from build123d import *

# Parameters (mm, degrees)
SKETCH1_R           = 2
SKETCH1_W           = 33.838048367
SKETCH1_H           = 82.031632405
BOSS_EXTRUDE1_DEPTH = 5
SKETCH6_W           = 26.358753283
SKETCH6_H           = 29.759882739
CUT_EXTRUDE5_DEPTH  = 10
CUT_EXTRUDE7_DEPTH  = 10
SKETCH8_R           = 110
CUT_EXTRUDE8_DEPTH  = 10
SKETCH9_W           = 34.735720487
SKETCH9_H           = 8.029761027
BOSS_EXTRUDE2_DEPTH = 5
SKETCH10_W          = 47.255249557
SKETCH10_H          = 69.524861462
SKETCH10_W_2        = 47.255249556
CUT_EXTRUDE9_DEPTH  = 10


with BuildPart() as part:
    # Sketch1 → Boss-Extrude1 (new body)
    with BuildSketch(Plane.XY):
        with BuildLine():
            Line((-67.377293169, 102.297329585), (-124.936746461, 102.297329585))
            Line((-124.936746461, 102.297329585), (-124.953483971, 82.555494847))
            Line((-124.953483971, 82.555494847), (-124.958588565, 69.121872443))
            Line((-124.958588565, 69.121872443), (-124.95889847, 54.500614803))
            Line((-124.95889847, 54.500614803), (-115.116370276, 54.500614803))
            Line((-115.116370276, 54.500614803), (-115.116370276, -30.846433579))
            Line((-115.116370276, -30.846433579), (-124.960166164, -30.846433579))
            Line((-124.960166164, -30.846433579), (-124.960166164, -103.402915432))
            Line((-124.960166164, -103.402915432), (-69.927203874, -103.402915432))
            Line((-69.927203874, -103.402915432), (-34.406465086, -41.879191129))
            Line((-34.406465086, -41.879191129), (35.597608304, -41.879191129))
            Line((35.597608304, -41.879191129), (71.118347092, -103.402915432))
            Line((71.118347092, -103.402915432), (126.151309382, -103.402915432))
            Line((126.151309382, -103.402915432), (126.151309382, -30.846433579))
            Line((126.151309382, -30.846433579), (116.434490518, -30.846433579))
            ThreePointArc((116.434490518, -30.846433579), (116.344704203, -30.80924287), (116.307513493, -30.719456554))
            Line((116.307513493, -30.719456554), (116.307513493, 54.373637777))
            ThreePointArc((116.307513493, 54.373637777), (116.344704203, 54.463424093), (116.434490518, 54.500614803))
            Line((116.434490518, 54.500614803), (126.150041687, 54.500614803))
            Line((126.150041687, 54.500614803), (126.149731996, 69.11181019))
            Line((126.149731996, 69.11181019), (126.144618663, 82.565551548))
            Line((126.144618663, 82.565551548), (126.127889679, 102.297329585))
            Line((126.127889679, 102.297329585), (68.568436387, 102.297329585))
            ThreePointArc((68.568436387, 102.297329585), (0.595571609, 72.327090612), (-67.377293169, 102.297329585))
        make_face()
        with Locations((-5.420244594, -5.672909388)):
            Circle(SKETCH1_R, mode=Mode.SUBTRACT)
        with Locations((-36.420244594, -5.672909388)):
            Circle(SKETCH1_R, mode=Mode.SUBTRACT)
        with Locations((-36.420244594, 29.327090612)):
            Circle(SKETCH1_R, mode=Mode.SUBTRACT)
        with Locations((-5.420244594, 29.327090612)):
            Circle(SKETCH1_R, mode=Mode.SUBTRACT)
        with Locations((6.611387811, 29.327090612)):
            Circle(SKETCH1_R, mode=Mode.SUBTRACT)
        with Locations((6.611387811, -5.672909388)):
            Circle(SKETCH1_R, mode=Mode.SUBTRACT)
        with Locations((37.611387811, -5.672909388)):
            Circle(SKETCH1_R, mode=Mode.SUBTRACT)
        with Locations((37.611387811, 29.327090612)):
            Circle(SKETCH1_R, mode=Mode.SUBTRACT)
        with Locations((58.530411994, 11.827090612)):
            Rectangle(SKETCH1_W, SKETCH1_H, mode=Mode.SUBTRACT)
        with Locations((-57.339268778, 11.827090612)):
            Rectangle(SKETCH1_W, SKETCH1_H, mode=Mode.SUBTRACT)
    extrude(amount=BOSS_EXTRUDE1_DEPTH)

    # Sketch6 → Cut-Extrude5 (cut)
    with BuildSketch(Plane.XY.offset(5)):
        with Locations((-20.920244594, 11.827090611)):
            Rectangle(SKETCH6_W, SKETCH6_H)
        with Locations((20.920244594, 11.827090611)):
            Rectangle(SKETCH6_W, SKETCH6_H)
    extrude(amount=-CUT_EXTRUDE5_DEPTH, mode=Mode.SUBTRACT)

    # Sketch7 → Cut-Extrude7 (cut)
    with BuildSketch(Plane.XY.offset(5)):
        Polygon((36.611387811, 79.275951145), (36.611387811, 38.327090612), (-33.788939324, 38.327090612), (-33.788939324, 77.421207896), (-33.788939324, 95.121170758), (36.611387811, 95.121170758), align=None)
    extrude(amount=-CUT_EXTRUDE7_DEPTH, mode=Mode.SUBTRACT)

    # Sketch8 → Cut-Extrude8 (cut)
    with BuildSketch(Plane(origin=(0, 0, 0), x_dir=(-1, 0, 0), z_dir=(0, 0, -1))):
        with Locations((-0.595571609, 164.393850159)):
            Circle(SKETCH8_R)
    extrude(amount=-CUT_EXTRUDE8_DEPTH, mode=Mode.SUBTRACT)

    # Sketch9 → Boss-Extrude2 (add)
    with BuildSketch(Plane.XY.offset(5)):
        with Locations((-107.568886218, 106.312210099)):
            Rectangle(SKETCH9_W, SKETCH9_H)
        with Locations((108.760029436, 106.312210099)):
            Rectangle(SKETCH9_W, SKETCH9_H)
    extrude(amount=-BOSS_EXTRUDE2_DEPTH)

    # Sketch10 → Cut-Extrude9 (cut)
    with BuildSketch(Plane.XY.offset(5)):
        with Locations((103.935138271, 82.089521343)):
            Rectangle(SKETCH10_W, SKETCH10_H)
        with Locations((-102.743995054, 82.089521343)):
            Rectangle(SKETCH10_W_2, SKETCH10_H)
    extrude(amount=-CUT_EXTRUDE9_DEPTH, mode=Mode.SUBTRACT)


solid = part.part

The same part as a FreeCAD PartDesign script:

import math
import FreeCAD as App
import Part
import Sketcher
from FreeCAD import Vector
Q = App.Units.Quantity


def add_polygon(sketch, points):
    """Adds a closed chain of lines whose ends are joined by coincident constraints."""
    first, n = sketch.GeometryCount, len(points)
    for a, b in zip(points, points[1:] + points[:1]):
        sketch.addGeometry(Part.LineSegment(App.Vector(*a, 0), App.Vector(*b, 0)), False)
    for i in range(n):
        sketch.addConstraint(Sketcher.Constraint("Coincident", first + i, 2, first + (i + 1) % n, 1))

doc = App.newDocument("Part")
body = doc.addObject("PartDesign::Body", "Body")

# Sketch on XY plane
sketch1 = doc.addObject("Sketcher::SketchObject", "Sketch")
body.addObject(sketch1)
sketch1.AttachmentSupport = (doc.XY_Plane, [""])
sketch1.MapMode = "FlatFace"
sketch1.addGeometry(Part.LineSegment(Vector(-67.38, 102.3, 0), Vector(-124.94, 102.3, 0)), False)  # 0
sketch1.addGeometry(Part.LineSegment(Vector(-124.94, 102.3, 0), Vector(-124.95, 82.56, 0)), False)  # 1
sketch1.addGeometry(Part.LineSegment(Vector(-124.95, 82.56, 0), Vector(-124.96, 69.12, 0)), False)  # 2
sketch1.addGeometry(Part.LineSegment(Vector(-124.96, 69.12, 0), Vector(-124.96, 54.5, 0)), False)  # 3
sketch1.addGeometry(Part.LineSegment(Vector(-124.96, 54.5, 0), Vector(-115.12, 54.5, 0)), False)  # 4
sketch1.addGeometry(Part.LineSegment(Vector(-115.12, 54.5, 0), Vector(-115.12, -30.85, 0)), False)  # 5
sketch1.addGeometry(Part.LineSegment(Vector(-115.12, -30.85, 0), Vector(-124.96, -30.85, 0)), False)  # 6
sketch1.addGeometry(Part.LineSegment(Vector(-124.96, -30.85, 0), Vector(-124.96, -103.4, 0)), False)  # 7
sketch1.addGeometry(Part.LineSegment(Vector(-124.96, -103.4, 0), Vector(-69.93, -103.4, 0)), False)  # 8
sketch1.addGeometry(Part.LineSegment(Vector(-69.93, -103.4, 0), Vector(-34.41, -41.88, 0)), False)  # 9
sketch1.addGeometry(Part.LineSegment(Vector(-34.41, -41.88, 0), Vector(35.6, -41.88, 0)), False)  # 10
sketch1.addGeometry(Part.LineSegment(Vector(35.6, -41.88, 0), Vector(71.12, -103.4, 0)), False)  # 11
sketch1.addGeometry(Part.LineSegment(Vector(71.12, -103.4, 0), Vector(126.15, -103.4, 0)), False)  # 12
sketch1.addGeometry(Part.LineSegment(Vector(126.15, -103.4, 0), Vector(126.15, -30.85, 0)), False)  # 13
sketch1.addGeometry(Part.LineSegment(Vector(126.15, -30.85, 0), Vector(116.43, -30.85, 0)), False)  # 14
sketch1.addGeometry(Part.ArcOfCircle(Part.Circle(Vector(116.43, -30.72, 0), Vector(0, 0, 1), 0.13), math.radians(180), math.radians(270)), False)  # 15
sketch1.addGeometry(Part.LineSegment(Vector(116.31, -30.72, 0), Vector(116.31, 54.37, 0)), False)  # 16
sketch1.addGeometry(Part.ArcOfCircle(Part.Circle(Vector(116.43, 54.37, 0), Vector(0, 0, 1), 0.13), math.radians(90), math.radians(180)), False)  # 17
sketch1.addGeometry(Part.LineSegment(Vector(116.43, 54.5, 0), Vector(126.15, 54.5, 0)), False)  # 18
sketch1.addGeometry(Part.LineSegment(Vector(126.15, 54.5, 0), Vector(126.15, 69.11, 0)), False)  # 19
sketch1.addGeometry(Part.LineSegment(Vector(126.15, 69.11, 0), Vector(126.14, 82.57, 0)), False)  # 20
sketch1.addGeometry(Part.LineSegment(Vector(126.14, 82.57, 0), Vector(126.13, 102.3, 0)), False)  # 21
sketch1.addGeometry(Part.LineSegment(Vector(126.13, 102.3, 0), Vector(68.57, 102.3, 0)), False)  # 22
sketch1.addGeometry(Part.ArcOfCircle(Part.Circle(Vector(0.6, 164.39, 0), Vector(0, 0, 1), 92.07), math.radians(-138), math.radians(-42)), False)  # 23
sketch1.addGeometry(Part.Circle(Vector(-36.42, -5.67, 0), Vector(0, 0, 1), 2), False)  # 24
sketch1.addGeometry(Part.Circle(Vector(-5.42, -5.67, 0), Vector(0, 0, 1), 2), False)  # 25
sketch1.addGeometry(Part.Circle(Vector(6.61, -5.67, 0), Vector(0, 0, 1), 2), False)  # 26
sketch1.addGeometry(Part.Circle(Vector(37.61, -5.67, 0), Vector(0, 0, 1), 2), False)  # 27
add_polygon(sketch1, [(-40.42, -29.19), (-74.26, -29.19), (-74.26, 52.84), (-40.42, 52.84)])  # lines 28-31
sketch1.addGeometry(Part.Circle(Vector(-36.42, 29.33, 0), Vector(0, 0, 1), 2), False)  # 32
sketch1.addGeometry(Part.Circle(Vector(-5.42, 29.33, 0), Vector(0, 0, 1), 2), False)  # 33
sketch1.addGeometry(Part.Circle(Vector(6.61, 29.33, 0), Vector(0, 0, 1), 2), False)  # 34
sketch1.addGeometry(Part.Circle(Vector(37.61, 29.33, 0), Vector(0, 0, 1), 2), False)  # 35
add_polygon(sketch1, [(75.45, -29.19), (41.61, -29.19), (41.61, 52.84), (75.45, 52.84)])  # lines 36-39
sketch1.addConstraint([
    Sketcher.Constraint("Coincident", 0, 2, 1, 1),
    Sketcher.Constraint("Coincident", 1, 2, 2, 1),
    Sketcher.Constraint("Coincident", 2, 2, 3, 1),
    Sketcher.Constraint("Coincident", 3, 2, 4, 1),
    Sketcher.Constraint("Coincident", 4, 2, 5, 1),
    Sketcher.Constraint("Coincident", 5, 2, 6, 1),
    Sketcher.Constraint("Coincident", 6, 2, 7, 1),
    Sketcher.Constraint("Coincident", 7, 2, 8, 1),
    Sketcher.Constraint("Coincident", 8, 2, 9, 1),
    Sketcher.Constraint("Coincident", 9, 2, 10, 1),
    Sketcher.Constraint("Coincident", 10, 2, 11, 1),
    Sketcher.Constraint("Coincident", 11, 2, 12, 1),
    Sketcher.Constraint("Coincident", 12, 2, 13, 1),
    Sketcher.Constraint("Coincident", 13, 2, 14, 1),
    Sketcher.Constraint("Tangent", 14, 2, 15, 2),
    Sketcher.Constraint("Tangent", 15, 1, 16, 1),
    Sketcher.Constraint("Tangent", 16, 2, 17, 2),
    Sketcher.Constraint("Tangent", 17, 1, 18, 1),
    Sketcher.Constraint("Coincident", 18, 2, 19, 1),
    Sketcher.Constraint("Coincident", 19, 2, 20, 1),
    Sketcher.Constraint("Coincident", 20, 2, 21, 1),
    Sketcher.Constraint("Coincident", 21, 2, 22, 1),
    Sketcher.Constraint("Coincident", 22, 2, 23, 2),
    Sketcher.Constraint("Coincident", 23, 1, 0, 1),
    Sketcher.Constraint("Horizontal", 0),
    Sketcher.Constraint("Horizontal", 4),
    Sketcher.Constraint("Vertical", 5),
    Sketcher.Constraint("Horizontal", 6),
    Sketcher.Constraint("Vertical", 7),
    Sketcher.Constraint("Horizontal", 8),
    Sketcher.Constraint("Horizontal", 10),
    Sketcher.Constraint("Horizontal", 12),
    Sketcher.Constraint("Vertical", 13),
    Sketcher.Constraint("Horizontal", 14),
    Sketcher.Constraint("Vertical", 16),
    Sketcher.Constraint("Horizontal", 18),
    Sketcher.Constraint("Horizontal", 22),
    Sketcher.Constraint("Horizontal", 28),
    Sketcher.Constraint("Vertical", 29),
    Sketcher.Constraint("Horizontal", 30),
    Sketcher.Constraint("Vertical", 31),
    Sketcher.Constraint("Horizontal", 36),
    Sketcher.Constraint("Vertical", 37),
    Sketcher.Constraint("Horizontal", 38),
    Sketcher.Constraint("Vertical", 39),
    Sketcher.Constraint("Equal", 15, 17),
    Sketcher.Constraint("Equal", 24, 25),
    Sketcher.Constraint("Equal", 25, 26),
    Sketcher.Constraint("Equal", 26, 27),
    Sketcher.Constraint("Equal", 27, 32),
    Sketcher.Constraint("Equal", 32, 33),
    Sketcher.Constraint("Equal", 33, 34),
    Sketcher.Constraint("Equal", 34, 35),
    Sketcher.Constraint("Horizontal", 24, 3, 25, 3),
    Sketcher.Constraint("Horizontal", 25, 3, 26, 3),
    Sketcher.Constraint("Horizontal", 26, 3, 27, 3),
    Sketcher.Constraint("Horizontal", 32, 3, 33, 3),
    Sketcher.Constraint("Horizontal", 33, 3, 34, 3),
    Sketcher.Constraint("Horizontal", 34, 3, 35, 3),
    Sketcher.Constraint("Horizontal", 8, 2, 11, 2),
    Sketcher.Constraint("Horizontal", 6, 2, 13, 2),
    Sketcher.Constraint("Horizontal", 4, 2, 17, 1),
    Sketcher.Constraint("Horizontal", 0, 2, 21, 2),
    Sketcher.Constraint("Horizontal", 31, 2, 36, 2),
    Sketcher.Constraint("Horizontal", 30, 2, 37, 2),
    Sketcher.Constraint("Vertical", 24, 3, 32, 3),
    Sketcher.Constraint("Vertical", 25, 3, 33, 3),
    Sketcher.Constraint("Vertical", 26, 3, 34, 3),
    Sketcher.Constraint("Vertical", 27, 3, 35, 3),
    Sketcher.Constraint("Equal", 8, 12),
    Sketcher.Constraint("Equal", 0, 22),
    Sketcher.Constraint("Equal", 30, 36),
    Sketcher.Constraint("Equal", 9, 11),
    Sketcher.Constraint("Diameter", 24, Q("4 mm")),
    Sketcher.Constraint("Angle", 9, Q("60 deg")),
    Sketcher.Constraint("DistanceX", 24, 3, 25, 3, Q("31 mm")),
    Sketcher.Constraint("DistanceX", 26, 3, 27, 3, Q("31 mm")),
    Sketcher.Constraint("DistanceY", 24, 3, 32, 3, Q("35 mm")),
    Sketcher.Constraint("DistanceX", 30, 2, 32, 3, Q("4 mm")),
    Sketcher.Constraint("DistanceX", 27, 3, 36, 2, Q("4 mm")),
    Sketcher.Constraint("Radius", 23, Q("92.06676 mm")),
    Sketcher.Constraint("Radius", 15, Q("0.126977 mm")),
    Sketcher.Constraint("DistanceX", 29, 2, 23, 1, Q("6.881 mm")),
    Sketcher.Constraint("DistanceX", 4, 1, 4, 2, Q("9.842528 mm")),
    Sketcher.Constraint("DistanceX", 14, 2, 14, 1, Q("9.716819 mm")),
    Sketcher.Constraint("DistanceX", 18, 1, 18, 2, Q("9.715551 mm")),
    Sketcher.Constraint("DistanceX", 28, 2, 28, 1, Q("33.838048 mm")),
    Sketcher.Constraint("DistanceY", 5, 2, 5, 1, Q("85.347048 mm")),
    Sketcher.Constraint("DistanceY", 7, 2, 7, 1, Q("72.556482 mm")),
    Sketcher.Constraint("DistanceX", 3, 2, -1, 1, Q("124.958898 mm")),
    Sketcher.Constraint("DistanceX", 0, 2, 32, 3, Q("88.516502 mm")),
    Sketcher.Constraint("DistanceX", 10, 2, 12, 2, Q("90.553701 mm")),
    Sketcher.Constraint("DistanceX", 17, 1, 21, 2, Q("9.693399 mm")),
    Sketcher.Constraint("Distance", 1, Q("19.741842 mm")),
    Sketcher.Constraint("DistanceX", 6, 2, 6, 1, Q("9.843796 mm")),
    Sketcher.Constraint("DistanceX", 8, 1, 8, 2, Q("55.032962 mm")),
    Sketcher.Constraint("DistanceX", 10, 1, 10, 2, Q("70.004073 mm")),
    Sketcher.Constraint("DistanceY", 29, 1, 29, 2, Q("82.031632 mm")),
    Sketcher.Constraint("DistanceX", -1, 1, 23, 3, Q("0.595572 mm")),
    Sketcher.Constraint("DistanceY", -1, 1, 23, 3, Q("164.39385 mm")),
    Sketcher.Constraint("DistanceY", 24, 3, -1, 1, Q("5.672909 mm")),
    Sketcher.Constraint("DistanceX", 2, 2, -1, 1, Q("124.958589 mm")),
    Sketcher.Constraint("DistanceY", 9, 2, -1, 1, Q("41.879191 mm")),
    Sketcher.Constraint("DistanceX", -1, 1, 19, 2, Q("126.149732 mm")),
    Sketcher.Constraint("DistanceY", -1, 1, 19, 2, Q("69.11181 mm")),
    Sketcher.Constraint("DistanceX", -1, 1, 20, 2, Q("126.144619 mm")),
    Sketcher.Constraint("DistanceY", -1, 1, 20, 2, Q("82.565552 mm")),
    Sketcher.Constraint("DistanceX", 1, 2, 32, 3, Q("88.533239 mm")),
    Sketcher.Constraint("DistanceX", 1, 2, 34, 3, Q("131.564872 mm")),
    Sketcher.Constraint("DistanceY", 32, 3, 2, 2, Q("39.794782 mm")),
    Sketcher.Constraint("DistanceY", 38, 2, 16, 2, Q("1.530731 mm")),
])
pad1 = doc.addObject("PartDesign::Pad", "Pad")
body.addObject(pad1)
pad1.Profile = sketch1
pad1.Length = 5

# Sketch on XY plane
sketch2 = doc.addObject("Sketcher::SketchObject", "Sketch001")
body.addObject(sketch2)
sketch2.AttachmentSupport = (doc.XY_Plane, [""])
sketch2.MapMode = "FlatFace"
sketch2.AttachmentOffset = App.Placement(Vector(0, 0, 5), App.Rotation())
add_polygon(sketch2, [(-34, 27), (-34, -3), (-8, -3), (-8, 27)])  # lines 0-3
add_polygon(sketch2, [(8, 27), (8, -3), (34, -3), (34, 27)])  # lines 4-7
sketch2.addConstraint([
    Sketcher.Constraint("Vertical", 0),
    Sketcher.Constraint("Horizontal", 1),
    Sketcher.Constraint("Vertical", 2),
    Sketcher.Constraint("Horizontal", 3),
    Sketcher.Constraint("Vertical", 4),
    Sketcher.Constraint("Horizontal", 5),
    Sketcher.Constraint("Vertical", 6),
    Sketcher.Constraint("Horizontal", 7),
    Sketcher.Constraint("Symmetric", 1, 2, 4, 2, -2),
    Sketcher.Constraint("Symmetric", 3, 2, 6, 2, -2),
    Sketcher.Constraint("DistanceX", 1, 1, 1, 2, Q("26.358753 mm")),
    Sketcher.Constraint("DistanceY", 0, 2, 0, 1, Q("29.759883 mm")),
    Sketcher.Constraint("DistanceX", 0, 2, -1, 1, Q("34.099621 mm")),
    Sketcher.Constraint("DistanceY", 0, 2, -1, 1, Q("3.052851 mm")),
])
pocket1 = doc.addObject("PartDesign::Pocket", "Pocket")
body.addObject(pocket1)
pocket1.Profile = sketch2
pocket1.Length = 10

# Sketch on XY plane
sketch3 = doc.addObject("Sketcher::SketchObject", "Sketch002")
body.addObject(sketch3)
sketch3.AttachmentSupport = (doc.XY_Plane, [""])
sketch3.MapMode = "FlatFace"
sketch3.AttachmentOffset = App.Placement(Vector(0, 0, 5), App.Rotation())
add_polygon(sketch3, [(37, 38), (37, 95), (-34, 95), (-34, 38)])  # lines 0-3
sketch3.addConstraint([
    Sketcher.Constraint("Vertical", 0),
    Sketcher.Constraint("Horizontal", 1),
    Sketcher.Constraint("Vertical", 2),
    Sketcher.Constraint("Horizontal", 3),
    Sketcher.Constraint("DistanceY", 0, 1, 0, 2, Q("56.79408 mm")),
    Sketcher.Constraint("DistanceX", 1, 2, 1, 1, Q("70.400327 mm")),
    Sketcher.Constraint("DistanceY", -1, 1, 0, 2, Q("95.121171 mm")),
    Sketcher.Constraint("DistanceX", 1, 2, -1, 1, Q("33.788939 mm")),
])
pocket2 = doc.addObject("PartDesign::Pocket", "Pocket001")
body.addObject(pocket2)
pocket2.Profile = sketch3
pocket2.Length = 10

# Sketch on XY plane
sketch4 = doc.addObject("Sketcher::SketchObject", "Sketch003")
body.addObject(sketch4)
sketch4.AttachmentSupport = (doc.XY_Plane, [""])
sketch4.MapMode = "FlatFace"
sketch4.addGeometry(Part.Circle(Vector(1, 164, 0), Vector(0, 0, 1), 110), False)
sketch4.addConstraint([
    Sketcher.Constraint("Diameter", 0, Q("220 mm")),
    Sketcher.Constraint("DistanceX", -1, 1, 0, 3, Q("0.595572 mm")),
    Sketcher.Constraint("DistanceY", -1, 1, 0, 3, Q("164.39385 mm")),
])
pocket3 = doc.addObject("PartDesign::Pocket", "Pocket002")
body.addObject(pocket3)
pocket3.Profile = sketch4
pocket3.Length = 10
pocket3.Reversed = True

# Sketch on XY plane
sketch5 = doc.addObject("Sketcher::SketchObject", "Sketch004")
body.addObject(sketch5)
sketch5.AttachmentSupport = (doc.XY_Plane, [""])
sketch5.MapMode = "FlatFace"
sketch5.AttachmentOffset = App.Placement(Vector(0, 0, 5), App.Rotation())
add_polygon(sketch5, [(-125, 110), (-125, 102), (-90, 102), (-90, 110)])  # lines 0-3
add_polygon(sketch5, [(91, 110), (91, 102), (126, 102), (126, 110)])  # lines 4-7
sketch5.addConstraint([
    Sketcher.Constraint("Vertical", 0),
    Sketcher.Constraint("Horizontal", 1),
    Sketcher.Constraint("Vertical", 2),
    Sketcher.Constraint("Horizontal", 3),
    Sketcher.Constraint("Vertical", 4),
    Sketcher.Constraint("Horizontal", 5),
    Sketcher.Constraint("Vertical", 6),
    Sketcher.Constraint("Horizontal", 7),
    Sketcher.Constraint("Horizontal", 1, 2, 4, 2),
    Sketcher.Constraint("Horizontal", 3, 2, 6, 2),
    Sketcher.Constraint("Equal", 3, 5),
    Sketcher.Constraint("DistanceX", 1, 1, 1, 2, Q("34.73572 mm")),
    Sketcher.Constraint("DistanceY", 0, 2, 0, 1, Q("8.029761 mm")),
    Sketcher.Constraint("DistanceY", -1, 1, 0, 2, Q("102.29733 mm")),
    Sketcher.Constraint("DistanceX", -1, 1, 4, 2, Q("91.392169 mm")),
    Sketcher.Constraint("DistanceX", 0, 2, -1, 1, Q("124.936746 mm")),
])
pad2 = doc.addObject("PartDesign::Pad", "Pad001")
body.addObject(pad2)
pad2.Profile = sketch5
pad2.Length = 5
pad2.Reversed = True

# Sketch on XY plane
sketch6 = doc.addObject("Sketcher::SketchObject", "Sketch005")
body.addObject(sketch6)
sketch6.AttachmentSupport = (doc.XY_Plane, [""])
sketch6.MapMode = "FlatFace"
sketch6.AttachmentOffset = App.Placement(Vector(0, 0, 5), App.Rotation())
add_polygon(sketch6, [(80, 117), (80, 47), (128, 47), (128, 117)])  # lines 0-3
add_polygon(sketch6, [(-126, 117), (-126, 47), (-79, 47), (-79, 117)])  # lines 4-7
sketch6.addConstraint([
    Sketcher.Constraint("Vertical", 0),
    Sketcher.Constraint("Horizontal", 1),
    Sketcher.Constraint("Vertical", 2),
    Sketcher.Constraint("Horizontal", 3),
    Sketcher.Constraint("Vertical", 4),
    Sketcher.Constraint("Horizontal", 5),
    Sketcher.Constraint("Vertical", 6),
    Sketcher.Constraint("Horizontal", 7),
    Sketcher.Constraint("Horizontal", 1, 2, 4, 2),
    Sketcher.Constraint("Horizontal", 3, 2, 6, 2),
    Sketcher.Constraint("Equal", 3, 5),
    Sketcher.Constraint("DistanceX", 1, 1, 1, 2, Q("47.25525 mm")),
    Sketcher.Constraint("DistanceY", 0, 2, 0, 1, Q("69.524861 mm")),
    Sketcher.Constraint("DistanceY", -1, 1, 0, 2, Q("47.327091 mm")),
    Sketcher.Constraint("DistanceX", 4, 2, -1, 1, Q("126.37162 mm")),
    Sketcher.Constraint("DistanceX", -1, 1, 0, 2, Q("80.307513 mm")),
])
pocket4 = doc.addObject("PartDesign::Pocket", "Pocket003")
body.addObject(pocket4)
pocket4.Profile = sketch6
pocket4.Length = 10

doc.recompute()
